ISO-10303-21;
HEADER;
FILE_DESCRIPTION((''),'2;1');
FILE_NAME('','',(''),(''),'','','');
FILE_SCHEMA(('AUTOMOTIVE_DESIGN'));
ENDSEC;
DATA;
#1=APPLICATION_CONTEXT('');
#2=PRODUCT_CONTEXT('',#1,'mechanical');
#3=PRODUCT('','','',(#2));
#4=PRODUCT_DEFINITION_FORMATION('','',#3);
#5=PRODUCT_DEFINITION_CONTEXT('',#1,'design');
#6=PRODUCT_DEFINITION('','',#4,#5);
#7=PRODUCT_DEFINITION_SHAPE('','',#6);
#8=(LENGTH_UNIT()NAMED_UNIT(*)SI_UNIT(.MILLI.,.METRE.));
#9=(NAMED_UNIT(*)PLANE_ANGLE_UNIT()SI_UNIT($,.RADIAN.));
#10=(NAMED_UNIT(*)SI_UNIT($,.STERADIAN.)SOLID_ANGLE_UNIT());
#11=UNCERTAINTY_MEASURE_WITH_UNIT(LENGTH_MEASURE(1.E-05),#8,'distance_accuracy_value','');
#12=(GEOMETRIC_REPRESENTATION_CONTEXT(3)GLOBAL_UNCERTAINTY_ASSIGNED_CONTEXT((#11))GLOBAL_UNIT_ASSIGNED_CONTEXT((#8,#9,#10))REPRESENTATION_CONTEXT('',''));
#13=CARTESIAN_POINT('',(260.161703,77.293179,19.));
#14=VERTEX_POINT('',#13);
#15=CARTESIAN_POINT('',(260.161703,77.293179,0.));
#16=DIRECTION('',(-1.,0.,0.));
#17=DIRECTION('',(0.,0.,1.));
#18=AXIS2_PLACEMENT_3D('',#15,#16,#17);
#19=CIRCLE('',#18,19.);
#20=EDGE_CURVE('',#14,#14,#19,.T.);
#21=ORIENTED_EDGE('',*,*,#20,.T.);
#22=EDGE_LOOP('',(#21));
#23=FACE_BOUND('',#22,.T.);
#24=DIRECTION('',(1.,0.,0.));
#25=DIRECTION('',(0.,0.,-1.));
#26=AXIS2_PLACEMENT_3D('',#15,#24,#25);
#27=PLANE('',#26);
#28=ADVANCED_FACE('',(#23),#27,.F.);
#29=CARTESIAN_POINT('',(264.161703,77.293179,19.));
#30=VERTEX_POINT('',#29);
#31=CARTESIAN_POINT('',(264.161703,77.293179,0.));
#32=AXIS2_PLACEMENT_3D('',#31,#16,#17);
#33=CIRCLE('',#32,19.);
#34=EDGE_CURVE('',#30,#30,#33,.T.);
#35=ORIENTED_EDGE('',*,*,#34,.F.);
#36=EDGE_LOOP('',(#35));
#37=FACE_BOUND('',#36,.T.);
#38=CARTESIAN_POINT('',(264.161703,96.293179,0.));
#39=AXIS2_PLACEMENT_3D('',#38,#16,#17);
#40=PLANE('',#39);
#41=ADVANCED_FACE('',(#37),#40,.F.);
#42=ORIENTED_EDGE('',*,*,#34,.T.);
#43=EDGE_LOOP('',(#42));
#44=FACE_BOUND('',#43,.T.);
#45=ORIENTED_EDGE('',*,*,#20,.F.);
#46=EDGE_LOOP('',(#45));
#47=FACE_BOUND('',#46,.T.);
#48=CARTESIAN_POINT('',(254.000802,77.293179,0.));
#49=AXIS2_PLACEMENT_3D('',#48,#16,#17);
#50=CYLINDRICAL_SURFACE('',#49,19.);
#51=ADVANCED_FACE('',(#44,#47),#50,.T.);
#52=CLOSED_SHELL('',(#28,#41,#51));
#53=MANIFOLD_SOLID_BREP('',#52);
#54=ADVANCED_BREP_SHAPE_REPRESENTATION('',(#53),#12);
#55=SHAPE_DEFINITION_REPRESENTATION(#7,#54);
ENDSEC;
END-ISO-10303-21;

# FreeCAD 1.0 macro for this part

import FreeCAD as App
import Part
import Sketcher

V = App.Vector
Q = App.Units.Quantity

doc = App.newDocument("Part")
body = doc.addObject("PartDesign::Body", "Body")

sketch1 = body.newObject("Sketcher::SketchObject", "Sketch")
sketch1.AttachmentSupport = (doc.getObject("XY_Plane"), [""])
sketch1.MapMode = "FlatFace"
sketch1.addGeometry(Part.LineSegment(V(260.2, 96.3, 0), V(260.2, 77.3, 0)), False)
sketch1.addGeometry(Part.LineSegment(V(260.2, 77.3, 0), V(264.2, 77.3, 0)), False)
sketch1.addGeometry(Part.LineSegment(V(264.2, 77.3, 0), V(264.2, 96.3, 0)), False)
sketch1.addGeometry(Part.LineSegment(V(264.2, 96.3, 0), V(260.2, 96.3, 0)), False)
sketch1.addGeometry(Part.LineSegment(V(260.2, 77.3, 0), V(264.2, 77.3, 0)), True)
sketch1.addConstraint(Sketcher.Constraint("Coincident", 0, 2, 1, 1))
sketch1.addConstraint(Sketcher.Constraint("Coincident", 1, 2, 2, 1))
sketch1.addConstraint(Sketcher.Constraint("Coincident", 2, 2, 3, 1))
sketch1.addConstraint(Sketcher.Constraint("Coincident", 3, 2, 0, 1))
sketch1.addConstraint(Sketcher.Constraint("Vertical", 0))
sketch1.addConstraint(Sketcher.Constraint("Horizontal", 1))
sketch1.addConstraint(Sketcher.Constraint("Vertical", 2))
sketch1.addConstraint(Sketcher.Constraint("Horizontal", 3))
sketch1.addConstraint(Sketcher.Constraint("Horizontal", 4))
sketch1.addConstraint(Sketcher.Constraint("Coincident", 4, 1, 0, 2))
sketch1.addConstraint(Sketcher.Constraint("Vertical", 2, 2, 4, 2))
sketch1.addConstraint(Sketcher.Constraint("DistanceX", 1, 1, 1, 2, Q("4 mm")))
sketch1.addConstraint(Sketcher.Constraint("DistanceY", 0, 2, 0, 1, Q("19 mm")))
sketch1.addConstraint(Sketcher.Constraint("DistanceY", -1, 1, 0, 2, Q("77.293179 mm")))
sketch1.addConstraint(Sketcher.Constraint("DistanceX", -1, 1, 0, 2, Q("260.161703 mm")))
revolution = body.newObject("PartDesign::Revolution", "Revolution")
revolution.Profile = sketch1
revolution.ReferenceAxis = (sketch1, ["Axis0"])
revolution.Angle = 360

doc.recompute()
